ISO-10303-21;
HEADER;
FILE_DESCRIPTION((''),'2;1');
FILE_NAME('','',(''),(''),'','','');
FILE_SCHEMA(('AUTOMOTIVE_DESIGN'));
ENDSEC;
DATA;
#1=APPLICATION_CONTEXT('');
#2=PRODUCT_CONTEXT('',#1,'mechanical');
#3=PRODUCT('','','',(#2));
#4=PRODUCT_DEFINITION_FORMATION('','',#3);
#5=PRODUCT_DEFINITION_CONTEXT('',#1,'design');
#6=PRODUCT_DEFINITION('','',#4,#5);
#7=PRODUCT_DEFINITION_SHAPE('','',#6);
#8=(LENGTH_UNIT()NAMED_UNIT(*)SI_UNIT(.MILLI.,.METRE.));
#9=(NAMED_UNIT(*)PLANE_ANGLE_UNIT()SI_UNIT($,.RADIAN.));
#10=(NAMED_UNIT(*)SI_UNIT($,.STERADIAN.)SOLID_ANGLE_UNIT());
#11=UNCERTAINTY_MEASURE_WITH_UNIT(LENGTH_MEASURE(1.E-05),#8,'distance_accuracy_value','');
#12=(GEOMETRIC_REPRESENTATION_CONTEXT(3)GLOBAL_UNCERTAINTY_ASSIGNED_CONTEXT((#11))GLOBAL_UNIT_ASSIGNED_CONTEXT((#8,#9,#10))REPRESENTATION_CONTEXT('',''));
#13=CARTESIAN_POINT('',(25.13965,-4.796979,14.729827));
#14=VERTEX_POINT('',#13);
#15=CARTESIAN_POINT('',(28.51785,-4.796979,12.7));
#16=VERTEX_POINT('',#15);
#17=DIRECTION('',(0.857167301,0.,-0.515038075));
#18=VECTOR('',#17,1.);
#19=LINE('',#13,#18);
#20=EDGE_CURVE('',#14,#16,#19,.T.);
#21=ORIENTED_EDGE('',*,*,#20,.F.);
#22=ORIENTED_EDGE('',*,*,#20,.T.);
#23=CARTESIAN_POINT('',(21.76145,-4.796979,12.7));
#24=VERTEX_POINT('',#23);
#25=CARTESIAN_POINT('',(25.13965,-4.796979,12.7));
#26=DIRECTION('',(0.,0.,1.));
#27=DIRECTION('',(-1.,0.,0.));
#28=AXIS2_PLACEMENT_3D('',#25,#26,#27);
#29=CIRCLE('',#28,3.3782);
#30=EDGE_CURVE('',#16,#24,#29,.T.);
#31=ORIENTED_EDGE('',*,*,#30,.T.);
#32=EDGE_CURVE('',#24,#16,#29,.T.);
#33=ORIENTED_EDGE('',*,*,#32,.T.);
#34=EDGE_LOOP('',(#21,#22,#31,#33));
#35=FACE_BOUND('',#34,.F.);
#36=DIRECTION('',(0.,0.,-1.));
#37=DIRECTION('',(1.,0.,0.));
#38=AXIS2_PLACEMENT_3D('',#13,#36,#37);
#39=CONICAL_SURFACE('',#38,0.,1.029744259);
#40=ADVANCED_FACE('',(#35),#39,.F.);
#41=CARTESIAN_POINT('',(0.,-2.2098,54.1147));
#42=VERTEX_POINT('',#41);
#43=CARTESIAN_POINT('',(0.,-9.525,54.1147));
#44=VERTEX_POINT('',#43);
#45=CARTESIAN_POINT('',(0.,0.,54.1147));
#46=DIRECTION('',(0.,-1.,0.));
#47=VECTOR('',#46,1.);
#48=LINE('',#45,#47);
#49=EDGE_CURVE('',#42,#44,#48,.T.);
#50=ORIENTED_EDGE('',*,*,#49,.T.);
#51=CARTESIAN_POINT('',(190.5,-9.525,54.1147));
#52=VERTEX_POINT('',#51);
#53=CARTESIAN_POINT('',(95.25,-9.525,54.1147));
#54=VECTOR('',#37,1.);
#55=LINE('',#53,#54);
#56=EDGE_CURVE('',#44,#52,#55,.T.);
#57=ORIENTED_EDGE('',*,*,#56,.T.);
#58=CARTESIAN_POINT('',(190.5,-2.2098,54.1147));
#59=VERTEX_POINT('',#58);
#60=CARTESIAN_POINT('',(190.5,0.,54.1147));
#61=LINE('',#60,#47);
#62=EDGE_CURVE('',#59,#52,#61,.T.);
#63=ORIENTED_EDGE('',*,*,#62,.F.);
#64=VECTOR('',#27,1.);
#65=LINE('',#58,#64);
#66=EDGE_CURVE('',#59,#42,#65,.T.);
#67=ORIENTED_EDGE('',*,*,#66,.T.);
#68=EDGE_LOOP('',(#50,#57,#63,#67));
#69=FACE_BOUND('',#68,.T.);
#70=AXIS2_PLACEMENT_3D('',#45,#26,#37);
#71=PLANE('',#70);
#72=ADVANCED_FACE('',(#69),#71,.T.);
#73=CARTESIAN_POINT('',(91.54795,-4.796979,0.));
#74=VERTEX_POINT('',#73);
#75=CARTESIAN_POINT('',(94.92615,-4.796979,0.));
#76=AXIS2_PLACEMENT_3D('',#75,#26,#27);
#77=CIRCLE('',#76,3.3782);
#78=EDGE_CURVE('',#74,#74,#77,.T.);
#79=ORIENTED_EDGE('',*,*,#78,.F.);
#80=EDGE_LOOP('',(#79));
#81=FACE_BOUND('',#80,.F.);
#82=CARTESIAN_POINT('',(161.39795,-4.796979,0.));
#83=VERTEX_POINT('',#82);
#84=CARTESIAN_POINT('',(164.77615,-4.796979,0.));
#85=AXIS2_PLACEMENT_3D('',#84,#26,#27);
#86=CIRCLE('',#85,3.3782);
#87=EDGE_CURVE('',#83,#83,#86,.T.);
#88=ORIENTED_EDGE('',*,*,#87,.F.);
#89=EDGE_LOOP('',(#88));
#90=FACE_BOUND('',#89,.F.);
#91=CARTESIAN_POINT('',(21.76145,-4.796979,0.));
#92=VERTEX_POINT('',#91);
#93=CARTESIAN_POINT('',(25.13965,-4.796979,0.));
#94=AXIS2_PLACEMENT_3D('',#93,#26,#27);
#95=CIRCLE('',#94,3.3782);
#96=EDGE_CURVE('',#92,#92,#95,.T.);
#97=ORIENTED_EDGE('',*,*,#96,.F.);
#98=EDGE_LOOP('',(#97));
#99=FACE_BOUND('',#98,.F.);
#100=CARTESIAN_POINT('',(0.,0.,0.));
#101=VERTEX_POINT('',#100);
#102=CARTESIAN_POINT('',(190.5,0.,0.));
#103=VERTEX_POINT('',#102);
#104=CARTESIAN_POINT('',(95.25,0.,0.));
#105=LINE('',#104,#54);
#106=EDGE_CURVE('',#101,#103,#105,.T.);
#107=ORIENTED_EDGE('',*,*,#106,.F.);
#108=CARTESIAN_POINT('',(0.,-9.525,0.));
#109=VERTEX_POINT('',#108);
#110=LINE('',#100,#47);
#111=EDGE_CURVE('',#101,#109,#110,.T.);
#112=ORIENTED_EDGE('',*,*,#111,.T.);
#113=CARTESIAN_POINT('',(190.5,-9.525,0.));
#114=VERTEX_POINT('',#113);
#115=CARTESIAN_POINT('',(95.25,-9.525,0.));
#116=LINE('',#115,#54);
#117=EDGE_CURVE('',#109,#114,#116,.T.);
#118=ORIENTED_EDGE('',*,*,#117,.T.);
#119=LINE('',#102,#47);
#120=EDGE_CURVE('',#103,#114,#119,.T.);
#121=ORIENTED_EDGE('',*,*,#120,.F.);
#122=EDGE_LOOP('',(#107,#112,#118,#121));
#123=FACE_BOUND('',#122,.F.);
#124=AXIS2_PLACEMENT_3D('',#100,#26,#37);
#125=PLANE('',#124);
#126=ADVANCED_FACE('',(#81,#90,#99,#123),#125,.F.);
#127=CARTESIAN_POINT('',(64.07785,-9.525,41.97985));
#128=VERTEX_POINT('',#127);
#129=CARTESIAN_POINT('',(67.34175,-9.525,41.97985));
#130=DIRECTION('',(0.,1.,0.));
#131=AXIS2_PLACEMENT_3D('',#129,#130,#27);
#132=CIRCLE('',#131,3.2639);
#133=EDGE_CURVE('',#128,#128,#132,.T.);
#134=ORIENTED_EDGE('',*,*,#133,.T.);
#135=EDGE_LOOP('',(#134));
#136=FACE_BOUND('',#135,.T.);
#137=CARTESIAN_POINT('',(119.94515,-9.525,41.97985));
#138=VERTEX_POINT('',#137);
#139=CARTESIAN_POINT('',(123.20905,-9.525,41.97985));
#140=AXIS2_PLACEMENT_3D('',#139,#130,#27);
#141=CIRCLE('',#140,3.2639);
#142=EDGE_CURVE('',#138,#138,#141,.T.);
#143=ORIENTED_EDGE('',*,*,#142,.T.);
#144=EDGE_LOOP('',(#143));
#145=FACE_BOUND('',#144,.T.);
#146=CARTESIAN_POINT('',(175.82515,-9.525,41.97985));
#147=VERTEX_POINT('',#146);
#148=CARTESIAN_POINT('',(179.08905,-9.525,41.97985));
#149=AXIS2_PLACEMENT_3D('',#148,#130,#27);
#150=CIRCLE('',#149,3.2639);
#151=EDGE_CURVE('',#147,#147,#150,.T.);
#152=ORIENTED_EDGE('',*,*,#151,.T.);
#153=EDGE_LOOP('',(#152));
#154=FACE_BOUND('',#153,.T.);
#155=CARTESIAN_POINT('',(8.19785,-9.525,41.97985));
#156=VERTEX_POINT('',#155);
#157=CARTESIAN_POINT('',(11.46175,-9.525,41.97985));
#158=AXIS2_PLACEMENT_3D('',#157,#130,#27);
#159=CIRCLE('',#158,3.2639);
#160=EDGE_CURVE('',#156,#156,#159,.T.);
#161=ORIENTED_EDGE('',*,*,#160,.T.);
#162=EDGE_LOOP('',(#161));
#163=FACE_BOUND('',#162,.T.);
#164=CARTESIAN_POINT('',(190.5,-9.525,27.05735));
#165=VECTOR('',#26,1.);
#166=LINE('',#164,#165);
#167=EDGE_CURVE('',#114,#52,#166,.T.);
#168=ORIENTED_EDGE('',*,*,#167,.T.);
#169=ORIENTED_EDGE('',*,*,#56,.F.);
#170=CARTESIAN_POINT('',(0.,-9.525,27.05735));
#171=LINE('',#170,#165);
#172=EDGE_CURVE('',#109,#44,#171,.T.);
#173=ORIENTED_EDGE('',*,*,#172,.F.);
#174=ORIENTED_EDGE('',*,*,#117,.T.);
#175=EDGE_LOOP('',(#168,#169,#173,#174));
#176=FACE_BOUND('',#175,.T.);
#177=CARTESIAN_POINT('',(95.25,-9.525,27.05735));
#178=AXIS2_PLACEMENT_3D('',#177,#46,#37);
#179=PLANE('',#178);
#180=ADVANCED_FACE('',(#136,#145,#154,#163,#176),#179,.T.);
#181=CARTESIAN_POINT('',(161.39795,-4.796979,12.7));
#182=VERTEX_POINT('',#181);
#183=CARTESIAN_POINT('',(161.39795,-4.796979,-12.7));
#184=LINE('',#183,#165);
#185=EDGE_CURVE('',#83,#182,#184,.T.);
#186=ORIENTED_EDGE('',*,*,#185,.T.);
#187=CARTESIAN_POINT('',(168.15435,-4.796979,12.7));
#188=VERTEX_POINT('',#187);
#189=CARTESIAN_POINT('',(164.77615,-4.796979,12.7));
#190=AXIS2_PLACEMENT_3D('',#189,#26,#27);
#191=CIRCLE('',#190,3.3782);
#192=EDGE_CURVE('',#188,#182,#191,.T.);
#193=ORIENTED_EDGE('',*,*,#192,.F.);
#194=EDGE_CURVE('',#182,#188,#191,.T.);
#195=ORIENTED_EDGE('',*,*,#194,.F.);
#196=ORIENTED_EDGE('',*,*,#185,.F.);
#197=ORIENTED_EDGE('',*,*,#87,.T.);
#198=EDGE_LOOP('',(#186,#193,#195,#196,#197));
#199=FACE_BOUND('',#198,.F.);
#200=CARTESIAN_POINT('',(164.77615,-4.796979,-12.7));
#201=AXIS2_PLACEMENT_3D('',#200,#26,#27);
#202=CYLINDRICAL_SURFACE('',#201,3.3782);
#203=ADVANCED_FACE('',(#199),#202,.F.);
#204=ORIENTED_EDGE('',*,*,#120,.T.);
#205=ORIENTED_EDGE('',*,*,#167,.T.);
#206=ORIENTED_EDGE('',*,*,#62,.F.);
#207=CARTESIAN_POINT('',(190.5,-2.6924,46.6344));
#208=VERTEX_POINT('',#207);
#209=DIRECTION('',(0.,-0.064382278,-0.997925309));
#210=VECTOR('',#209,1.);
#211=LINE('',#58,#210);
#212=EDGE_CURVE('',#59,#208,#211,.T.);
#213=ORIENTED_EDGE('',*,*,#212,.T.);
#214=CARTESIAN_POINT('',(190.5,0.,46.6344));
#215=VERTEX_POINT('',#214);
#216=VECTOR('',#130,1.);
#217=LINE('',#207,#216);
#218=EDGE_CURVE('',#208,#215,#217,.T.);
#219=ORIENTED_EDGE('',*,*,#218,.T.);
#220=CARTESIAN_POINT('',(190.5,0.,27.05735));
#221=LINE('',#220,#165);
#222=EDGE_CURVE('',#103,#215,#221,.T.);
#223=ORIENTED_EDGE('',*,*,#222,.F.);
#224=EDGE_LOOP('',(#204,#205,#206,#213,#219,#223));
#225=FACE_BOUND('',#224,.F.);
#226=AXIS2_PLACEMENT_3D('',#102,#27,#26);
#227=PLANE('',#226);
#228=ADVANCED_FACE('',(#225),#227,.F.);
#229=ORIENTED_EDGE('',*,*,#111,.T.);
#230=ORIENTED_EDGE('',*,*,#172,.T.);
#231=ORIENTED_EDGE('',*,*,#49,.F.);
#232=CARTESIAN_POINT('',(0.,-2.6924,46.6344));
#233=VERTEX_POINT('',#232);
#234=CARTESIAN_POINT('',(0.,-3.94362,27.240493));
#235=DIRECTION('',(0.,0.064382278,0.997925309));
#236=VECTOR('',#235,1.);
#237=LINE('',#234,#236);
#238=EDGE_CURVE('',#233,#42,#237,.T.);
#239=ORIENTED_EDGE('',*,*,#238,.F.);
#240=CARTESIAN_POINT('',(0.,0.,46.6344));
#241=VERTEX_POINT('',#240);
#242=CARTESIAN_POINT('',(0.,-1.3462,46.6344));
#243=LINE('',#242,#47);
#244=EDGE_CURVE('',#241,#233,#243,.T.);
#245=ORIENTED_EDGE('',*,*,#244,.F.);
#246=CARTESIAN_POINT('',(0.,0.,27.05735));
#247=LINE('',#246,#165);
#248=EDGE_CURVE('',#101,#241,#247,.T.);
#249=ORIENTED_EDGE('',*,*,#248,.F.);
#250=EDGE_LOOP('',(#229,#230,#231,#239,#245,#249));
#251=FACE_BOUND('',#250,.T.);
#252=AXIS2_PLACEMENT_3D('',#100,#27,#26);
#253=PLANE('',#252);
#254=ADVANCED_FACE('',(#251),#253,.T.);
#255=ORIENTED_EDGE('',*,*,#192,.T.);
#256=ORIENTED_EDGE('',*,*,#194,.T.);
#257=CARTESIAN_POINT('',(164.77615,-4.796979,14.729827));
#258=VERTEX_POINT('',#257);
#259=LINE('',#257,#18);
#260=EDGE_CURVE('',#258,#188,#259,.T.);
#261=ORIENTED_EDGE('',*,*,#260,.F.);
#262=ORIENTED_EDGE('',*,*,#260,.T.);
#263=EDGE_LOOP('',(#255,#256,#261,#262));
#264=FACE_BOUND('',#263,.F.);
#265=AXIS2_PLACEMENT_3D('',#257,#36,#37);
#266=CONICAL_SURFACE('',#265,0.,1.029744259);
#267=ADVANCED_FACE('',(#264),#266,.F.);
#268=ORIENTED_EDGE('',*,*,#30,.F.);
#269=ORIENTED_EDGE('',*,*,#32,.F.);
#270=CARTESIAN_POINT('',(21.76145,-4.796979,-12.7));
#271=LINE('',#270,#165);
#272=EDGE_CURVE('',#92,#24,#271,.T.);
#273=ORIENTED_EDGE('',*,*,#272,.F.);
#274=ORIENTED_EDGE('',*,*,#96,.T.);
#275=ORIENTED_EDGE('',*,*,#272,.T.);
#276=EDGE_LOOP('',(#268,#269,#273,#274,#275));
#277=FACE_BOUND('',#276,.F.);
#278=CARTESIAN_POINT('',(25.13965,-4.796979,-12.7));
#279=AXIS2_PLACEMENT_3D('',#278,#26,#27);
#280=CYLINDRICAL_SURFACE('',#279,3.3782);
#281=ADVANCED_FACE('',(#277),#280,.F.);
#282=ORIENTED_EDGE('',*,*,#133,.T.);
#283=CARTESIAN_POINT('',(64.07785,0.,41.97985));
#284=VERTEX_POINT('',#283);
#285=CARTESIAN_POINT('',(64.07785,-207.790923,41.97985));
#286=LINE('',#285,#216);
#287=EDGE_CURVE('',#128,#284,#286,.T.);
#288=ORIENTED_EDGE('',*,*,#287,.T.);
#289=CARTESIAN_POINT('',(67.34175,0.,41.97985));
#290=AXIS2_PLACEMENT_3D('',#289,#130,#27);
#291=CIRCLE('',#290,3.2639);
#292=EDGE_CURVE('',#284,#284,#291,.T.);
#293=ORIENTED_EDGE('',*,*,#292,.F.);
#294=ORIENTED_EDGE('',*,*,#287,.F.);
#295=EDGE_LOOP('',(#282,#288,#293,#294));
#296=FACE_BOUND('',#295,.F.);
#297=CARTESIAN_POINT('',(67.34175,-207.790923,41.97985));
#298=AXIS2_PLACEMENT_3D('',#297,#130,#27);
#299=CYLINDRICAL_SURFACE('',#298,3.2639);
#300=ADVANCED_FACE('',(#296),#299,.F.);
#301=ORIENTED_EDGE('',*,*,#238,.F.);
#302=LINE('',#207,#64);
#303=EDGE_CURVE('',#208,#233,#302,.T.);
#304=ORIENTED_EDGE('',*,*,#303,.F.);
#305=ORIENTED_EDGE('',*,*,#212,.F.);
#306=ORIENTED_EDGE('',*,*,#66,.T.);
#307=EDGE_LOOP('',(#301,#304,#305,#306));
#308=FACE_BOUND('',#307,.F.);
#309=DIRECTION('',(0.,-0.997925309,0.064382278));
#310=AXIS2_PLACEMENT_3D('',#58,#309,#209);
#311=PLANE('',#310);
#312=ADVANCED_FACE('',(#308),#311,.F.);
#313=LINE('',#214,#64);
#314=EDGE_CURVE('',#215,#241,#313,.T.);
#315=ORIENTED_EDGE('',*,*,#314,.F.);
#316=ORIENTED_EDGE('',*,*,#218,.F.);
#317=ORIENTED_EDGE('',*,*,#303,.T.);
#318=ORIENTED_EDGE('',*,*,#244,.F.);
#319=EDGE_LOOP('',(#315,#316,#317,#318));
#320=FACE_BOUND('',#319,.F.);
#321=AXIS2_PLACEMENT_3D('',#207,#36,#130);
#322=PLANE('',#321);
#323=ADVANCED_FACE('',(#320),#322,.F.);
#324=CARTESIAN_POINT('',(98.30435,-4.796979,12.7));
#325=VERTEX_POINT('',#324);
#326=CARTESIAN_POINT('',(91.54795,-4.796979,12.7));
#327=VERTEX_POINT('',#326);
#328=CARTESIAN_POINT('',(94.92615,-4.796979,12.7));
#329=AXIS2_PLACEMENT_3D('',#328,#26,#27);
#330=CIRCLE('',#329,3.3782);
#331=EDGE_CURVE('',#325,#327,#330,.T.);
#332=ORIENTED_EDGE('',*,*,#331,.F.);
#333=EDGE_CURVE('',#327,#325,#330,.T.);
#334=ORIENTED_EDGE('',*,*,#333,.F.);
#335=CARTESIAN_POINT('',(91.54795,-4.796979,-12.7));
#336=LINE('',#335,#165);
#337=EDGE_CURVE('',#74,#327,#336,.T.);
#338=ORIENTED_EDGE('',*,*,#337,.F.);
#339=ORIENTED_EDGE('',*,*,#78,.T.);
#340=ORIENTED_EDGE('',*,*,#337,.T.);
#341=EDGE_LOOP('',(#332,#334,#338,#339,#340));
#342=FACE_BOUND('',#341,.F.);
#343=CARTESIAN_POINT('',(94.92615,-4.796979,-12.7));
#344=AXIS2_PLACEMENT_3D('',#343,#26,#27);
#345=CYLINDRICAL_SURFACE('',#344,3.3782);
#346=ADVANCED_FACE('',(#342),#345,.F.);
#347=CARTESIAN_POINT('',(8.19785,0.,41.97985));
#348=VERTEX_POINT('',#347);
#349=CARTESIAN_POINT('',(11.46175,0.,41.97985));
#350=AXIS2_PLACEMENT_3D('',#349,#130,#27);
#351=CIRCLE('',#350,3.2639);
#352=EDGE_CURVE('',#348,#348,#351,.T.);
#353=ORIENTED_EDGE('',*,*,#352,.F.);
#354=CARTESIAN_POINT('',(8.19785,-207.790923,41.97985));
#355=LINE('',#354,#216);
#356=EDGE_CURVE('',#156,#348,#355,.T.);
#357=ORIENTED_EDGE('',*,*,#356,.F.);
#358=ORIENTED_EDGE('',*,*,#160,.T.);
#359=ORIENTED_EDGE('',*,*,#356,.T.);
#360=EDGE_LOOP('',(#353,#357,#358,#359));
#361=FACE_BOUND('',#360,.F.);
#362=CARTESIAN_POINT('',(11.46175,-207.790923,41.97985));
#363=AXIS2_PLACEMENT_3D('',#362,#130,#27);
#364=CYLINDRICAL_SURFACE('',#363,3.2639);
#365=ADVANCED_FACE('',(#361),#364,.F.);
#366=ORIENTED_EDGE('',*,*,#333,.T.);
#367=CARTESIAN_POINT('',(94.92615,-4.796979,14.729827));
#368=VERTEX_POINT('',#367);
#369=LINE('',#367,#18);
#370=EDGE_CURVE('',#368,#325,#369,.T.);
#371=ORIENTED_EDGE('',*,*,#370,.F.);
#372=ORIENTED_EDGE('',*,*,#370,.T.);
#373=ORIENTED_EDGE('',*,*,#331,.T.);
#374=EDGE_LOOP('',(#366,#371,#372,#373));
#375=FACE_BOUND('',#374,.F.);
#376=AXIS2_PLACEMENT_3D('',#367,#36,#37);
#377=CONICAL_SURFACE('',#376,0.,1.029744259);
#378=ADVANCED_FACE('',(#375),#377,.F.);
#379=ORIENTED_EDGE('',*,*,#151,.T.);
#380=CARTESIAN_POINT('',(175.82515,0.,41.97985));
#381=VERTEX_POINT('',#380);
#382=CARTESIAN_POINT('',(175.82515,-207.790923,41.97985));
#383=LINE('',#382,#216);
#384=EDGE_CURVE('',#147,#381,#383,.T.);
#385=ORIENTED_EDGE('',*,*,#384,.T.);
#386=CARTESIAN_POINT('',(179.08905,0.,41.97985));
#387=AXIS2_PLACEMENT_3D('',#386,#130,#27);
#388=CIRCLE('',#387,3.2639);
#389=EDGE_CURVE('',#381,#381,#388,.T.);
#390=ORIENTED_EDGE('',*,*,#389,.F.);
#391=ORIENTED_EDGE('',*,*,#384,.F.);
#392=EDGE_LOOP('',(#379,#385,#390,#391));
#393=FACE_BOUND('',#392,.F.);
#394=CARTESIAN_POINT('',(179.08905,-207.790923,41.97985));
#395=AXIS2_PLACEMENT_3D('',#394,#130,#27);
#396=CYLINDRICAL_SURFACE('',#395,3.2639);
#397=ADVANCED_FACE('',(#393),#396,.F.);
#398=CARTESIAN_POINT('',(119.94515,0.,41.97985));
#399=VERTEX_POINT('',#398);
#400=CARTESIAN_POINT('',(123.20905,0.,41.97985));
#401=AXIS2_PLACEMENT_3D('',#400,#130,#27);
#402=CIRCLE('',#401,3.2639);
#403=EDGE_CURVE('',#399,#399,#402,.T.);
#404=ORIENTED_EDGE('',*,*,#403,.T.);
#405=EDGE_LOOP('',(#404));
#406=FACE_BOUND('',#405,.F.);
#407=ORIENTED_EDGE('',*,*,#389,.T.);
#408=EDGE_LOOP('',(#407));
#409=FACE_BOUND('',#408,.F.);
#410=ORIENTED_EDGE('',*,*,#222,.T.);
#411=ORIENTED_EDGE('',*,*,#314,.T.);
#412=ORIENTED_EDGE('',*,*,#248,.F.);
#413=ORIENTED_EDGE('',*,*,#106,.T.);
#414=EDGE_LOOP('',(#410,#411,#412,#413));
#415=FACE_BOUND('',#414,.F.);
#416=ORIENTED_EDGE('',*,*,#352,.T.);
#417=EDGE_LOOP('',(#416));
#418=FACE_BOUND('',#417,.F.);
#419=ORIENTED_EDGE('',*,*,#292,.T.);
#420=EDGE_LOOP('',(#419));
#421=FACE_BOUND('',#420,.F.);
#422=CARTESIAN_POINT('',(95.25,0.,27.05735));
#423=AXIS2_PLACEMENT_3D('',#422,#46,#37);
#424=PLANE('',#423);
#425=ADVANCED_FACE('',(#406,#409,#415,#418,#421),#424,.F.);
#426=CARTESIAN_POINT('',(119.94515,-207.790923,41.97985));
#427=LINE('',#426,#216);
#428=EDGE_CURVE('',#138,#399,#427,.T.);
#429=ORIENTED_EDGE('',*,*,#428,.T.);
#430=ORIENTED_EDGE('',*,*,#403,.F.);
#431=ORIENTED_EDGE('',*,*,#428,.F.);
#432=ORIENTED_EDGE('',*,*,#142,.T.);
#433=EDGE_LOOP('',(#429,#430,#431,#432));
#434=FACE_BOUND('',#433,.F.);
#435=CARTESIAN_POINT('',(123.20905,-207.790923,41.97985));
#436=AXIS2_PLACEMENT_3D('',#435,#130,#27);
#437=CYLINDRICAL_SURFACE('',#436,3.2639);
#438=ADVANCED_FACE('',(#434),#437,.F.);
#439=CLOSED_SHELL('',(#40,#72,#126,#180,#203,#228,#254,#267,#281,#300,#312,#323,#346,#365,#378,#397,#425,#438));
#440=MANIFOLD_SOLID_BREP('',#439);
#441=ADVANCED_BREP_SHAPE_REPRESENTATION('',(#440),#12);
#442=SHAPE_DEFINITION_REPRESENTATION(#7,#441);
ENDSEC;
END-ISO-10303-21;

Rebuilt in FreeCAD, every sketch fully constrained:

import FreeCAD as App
import Part
import Sketcher

V = App.Vector
Q = App.Units.Quantity


def add_polygon(sketch, points):
    """Adds a closed chain of lines whose ends are joined by coincident constraints."""
    first, n = sketch.GeometryCount, len(points)
    for a, b in zip(points, points[1:] + points[:1]):
        sketch.addGeometry(Part.LineSegment(App.Vector(*a, 0), App.Vector(*b, 0)), False)
    for i in range(n):
        sketch.addConstraint(Sketcher.Constraint("Coincident", first + i, 2, first + (i + 1) % n, 1))

doc = App.newDocument("Part")
body = doc.addObject("PartDesign::Body", "Body")

# Sketch on XZ plane
sketch1 = doc.addObject("Sketcher::SketchObject", "Sketch")
body.addObject(sketch1)
sketch1.AttachmentSupport = (doc.XZ_Plane, [""])
sketch1.MapMode = "FlatFace"
add_polygon(sketch1, [(0, 54.1147), (0, 0), (190.5, 0), (190.5, 54.1147)])  # lines 0-3
sketch1.addConstraint(Sketcher.Constraint("Vertical", 0))
sketch1.addConstraint(Sketcher.Constraint("Horizontal", 1))
sketch1.addConstraint(Sketcher.Constraint("Vertical", 2))
sketch1.addConstraint(Sketcher.Constraint("Horizontal", 3))
sketch1.addConstraint(Sketcher.Constraint("Coincident", 0, 2, -1, 1))
sketch1.addConstraint(Sketcher.Constraint("DistanceX", 1, 1, 1, 2, Q("7.5 in")))
sketch1.addConstraint(Sketcher.Constraint("DistanceY", 0, 2, 0, 1, Q("2.1305 in")))
pad1 = doc.addObject("PartDesign::Pad", "Pad")
body.addObject(pad1)
pad1.Profile = sketch1
pad1.Length = Q("0.375 in")

# Sketch on XZ plane
sketch2 = doc.addObject("Sketcher::SketchObject", "Sketch001")
body.addObject(sketch2)
sketch2.AttachmentSupport = (doc.XZ_Plane, [""])
sketch2.MapMode = "FlatFace"
sketch2.AttachmentOffset = App.Placement(V(0, 0, 0.375 * 25.4), App.Rotation())
sketch2.addGeometry(Part.Circle(V(11.46175, 41.97985, 0), V(0, 0, 1), 3.2639), False)
sketch2.addGeometry(Part.Circle(V(67.34175, 41.97985, 0), V(0, 0, 1), 3.2639), False)
sketch2.addGeometry(Part.Circle(V(123.20905, 41.97985, 0), V(0, 0, 1), 3.2639), False)
sketch2.addGeometry(Part.Circle(V(179.08905, 41.97985, 0), V(0, 0, 1), 3.2639), False)
sketch2.addConstraint(Sketcher.Constraint("Equal", 0, 1))
sketch2.addConstraint(Sketcher.Constraint("Equal", 1, 2))
sketch2.addConstraint(Sketcher.Constraint("Equal", 2, 3))
sketch2.addConstraint(Sketcher.Constraint("Horizontal", 0, 3, 1, 3))
sketch2.addConstraint(Sketcher.Constraint("Horizontal", 1, 3, 2, 3))
sketch2.addConstraint(Sketcher.Constraint("Horizontal", 2, 3, 3, 3))
sketch2.addConstraint(Sketcher.Constraint("Diameter", 0, Q("0.257 in")))
sketch2.addConstraint(Sketcher.Constraint("DistanceX", 0, 3, 1, 3, Q("2.2 in")))
sketch2.addConstraint(Sketcher.Constraint("DistanceX", 2, 3, 3, 3, Q("2.2 in")))
sketch2.addConstraint(Sketcher.Constraint("DistanceX", 1, 3, 2, 3, Q("2.1995 in")))
sketch2.addConstraint(Sketcher.Constraint("DistanceX", -1, 1, 0, 3, 11.46175))
sketch2.addConstraint(Sketcher.Constraint("DistanceY", -1, 1, 0, 3, 41.97985))
doc.recompute()
hole = doc.addObject("PartDesign::Hole", "Hole")
body.addObject(hole)
hole.Profile = sketch2
hole.ThreadType = "None"
hole.Diameter = Q("0.257 in")
hole.DepthType = "ThroughAll"

# Sketch on YZ plane
sketch3 = doc.addObject("Sketcher::SketchObject", "Sketch002")
body.addObject(sketch3)
sketch3.AttachmentSupport = (doc.YZ_Plane, [""])
sketch3.MapMode = "FlatFace"
sketch3.AttachmentOffset = App.Placement(V(0, 0, 7.5 * 25.4), App.Rotation())
add_polygon(sketch3, [(0, 54.1147), (-2.2098, 54.1147), (-2.6924, 46.6344), (0, 46.6344)])  # lines 0-3
sketch3.addConstraint(Sketcher.Constraint("Horizontal", 0))
sketch3.addConstraint(Sketcher.Constraint("Horizontal", 2))
sketch3.addConstraint(Sketcher.Constraint("Vertical", 3))
sketch3.addConstraint(Sketcher.Constraint("PointOnObject", 2, 2, -2))
sketch3.addConstraint(Sketcher.Constraint("DistanceX", 0, 2, 0, 1, Q("0.087 in")))
sketch3.addConstraint(Sketcher.Constraint("DistanceX", 2, 1, 2, 2, Q("0.106 in")))
sketch3.addConstraint(Sketcher.Constraint("DistanceY", 3, 1, 3, 2, Q("0.2945 in")))
sketch3.addConstraint(Sketcher.Constraint("DistanceY", -1, 1, 1, 2, Q("1.836 in")))
pocket1 = doc.addObject("PartDesign::Pocket", "Pocket")
body.addObject(pocket1)
pocket1.Profile = sketch3
pocket1.Type = "ThroughAll"

# Sketch on XY plane
sketch4 = doc.addObject("Sketcher::SketchObject", "Sketch003")
body.addObject(sketch4)
sketch4.AttachmentSupport = (doc.XY_Plane, [""])
sketch4.MapMode = "FlatFace"
sketch4.addGeometry(Part.Circle(V(25.13965, -4.796979, 0), V(0, 0, 1), 3.3782), False)
sketch4.addGeometry(Part.Circle(V(94.92615, -4.796979, 0), V(0, 0, 1), 3.3782), False)
sketch4.addGeometry(Part.Circle(V(164.77615, -4.796979, 0), V(0, 0, 1), 3.3782), False)
sketch4.addConstraint(Sketcher.Constraint("Equal", 0, 1))
sketch4.addConstraint(Sketcher.Constraint("Equal", 1, 2))
sketch4.addConstraint(Sketcher.Constraint("Horizontal", 0, 3, 1, 3))
sketch4.addConstraint(Sketcher.Constraint("Horizontal", 1, 3, 2, 3))
sketch4.addConstraint(Sketcher.Constraint("Diameter", 0, Q("0.266 in")))
sketch4.addConstraint(Sketcher.Constraint("DistanceX", 1, 3, 2, 3, Q("2.75 in")))
sketch4.addConstraint(Sketcher.Constraint("DistanceX", 0, 3, 1, 3, Q("2.7475 in")))
sketch4.addConstraint(Sketcher.Constraint("DistanceX", -1, 1, 0, 3, 25.13965))
sketch4.addConstraint(Sketcher.Constraint("DistanceY", 0, 3, -1, 1, 4.796979))
doc.recompute()
hole2 = doc.addObject("PartDesign::Hole", "Hole001")
body.addObject(hole2)
hole2.Profile = sketch4
hole2.ThreadType = "None"
hole2.Diameter = Q("0.266 in")
hole2.DepthType = "Dimension"
hole2.Depth = Q("0.5 in")
hole2.DrillPoint = "Angled"
hole2.DrillPointAngle = 118
hole2.Reversed = True

doc.recompute()
